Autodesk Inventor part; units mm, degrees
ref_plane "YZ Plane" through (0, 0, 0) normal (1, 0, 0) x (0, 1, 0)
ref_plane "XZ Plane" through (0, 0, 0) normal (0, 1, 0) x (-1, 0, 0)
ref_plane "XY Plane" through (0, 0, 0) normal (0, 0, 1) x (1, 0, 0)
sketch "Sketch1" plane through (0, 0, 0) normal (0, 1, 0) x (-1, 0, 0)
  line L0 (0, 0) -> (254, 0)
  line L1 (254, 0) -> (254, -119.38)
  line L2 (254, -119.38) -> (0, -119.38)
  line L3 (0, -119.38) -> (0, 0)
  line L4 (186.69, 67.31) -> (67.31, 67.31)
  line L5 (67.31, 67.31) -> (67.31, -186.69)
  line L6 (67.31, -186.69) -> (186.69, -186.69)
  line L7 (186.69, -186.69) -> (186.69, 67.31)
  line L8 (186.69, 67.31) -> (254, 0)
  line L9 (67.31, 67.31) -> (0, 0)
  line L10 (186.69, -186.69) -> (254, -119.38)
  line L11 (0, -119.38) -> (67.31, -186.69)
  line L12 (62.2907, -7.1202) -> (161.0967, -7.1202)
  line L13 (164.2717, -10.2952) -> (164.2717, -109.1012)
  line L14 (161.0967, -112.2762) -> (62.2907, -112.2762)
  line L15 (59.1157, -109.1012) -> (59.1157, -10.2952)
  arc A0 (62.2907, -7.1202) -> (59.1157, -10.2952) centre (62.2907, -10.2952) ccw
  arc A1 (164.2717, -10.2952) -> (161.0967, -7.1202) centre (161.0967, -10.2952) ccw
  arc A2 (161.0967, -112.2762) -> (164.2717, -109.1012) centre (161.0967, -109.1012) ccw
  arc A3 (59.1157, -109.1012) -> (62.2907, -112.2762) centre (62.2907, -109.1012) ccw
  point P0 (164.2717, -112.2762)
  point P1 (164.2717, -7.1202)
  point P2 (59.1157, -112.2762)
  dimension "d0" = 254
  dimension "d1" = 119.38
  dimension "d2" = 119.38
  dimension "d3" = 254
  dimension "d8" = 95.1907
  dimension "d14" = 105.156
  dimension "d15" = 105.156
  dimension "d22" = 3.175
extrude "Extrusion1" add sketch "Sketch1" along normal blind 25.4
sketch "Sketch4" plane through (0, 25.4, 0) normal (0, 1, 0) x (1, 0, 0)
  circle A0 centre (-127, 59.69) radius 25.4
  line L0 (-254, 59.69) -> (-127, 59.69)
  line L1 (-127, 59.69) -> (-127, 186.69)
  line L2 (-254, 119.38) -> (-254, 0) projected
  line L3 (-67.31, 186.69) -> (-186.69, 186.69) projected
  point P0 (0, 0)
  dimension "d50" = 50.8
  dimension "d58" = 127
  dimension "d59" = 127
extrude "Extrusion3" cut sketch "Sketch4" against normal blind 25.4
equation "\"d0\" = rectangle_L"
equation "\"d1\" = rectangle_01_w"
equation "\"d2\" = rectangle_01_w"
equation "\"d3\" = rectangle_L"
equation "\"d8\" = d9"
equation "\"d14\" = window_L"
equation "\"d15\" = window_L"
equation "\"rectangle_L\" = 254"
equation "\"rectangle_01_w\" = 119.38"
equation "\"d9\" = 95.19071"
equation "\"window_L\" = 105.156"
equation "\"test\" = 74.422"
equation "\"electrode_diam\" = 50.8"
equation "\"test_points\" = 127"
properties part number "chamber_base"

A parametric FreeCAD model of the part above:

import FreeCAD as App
import Part
import Sketcher
Q = App.Units.Quantity

doc = App.newDocument("Part")
body = doc.addObject("PartDesign::Body", "Body")

sketch1 = body.newObject("Sketcher::SketchObject", "Sketch")
sketch1.AttachmentSupport = (doc.getObject("XZ_Plane"), [""])
sketch1.MapMode = "FlatFace"
sketch1.addGeometry([
    Part.LineSegment(App.Vector(-67.31, 67.31, 0), App.Vector(0, 0, 0)),
    Part.LineSegment(App.Vector(0, 0, 0), App.Vector(0, -119.38, 0)),
    Part.LineSegment(App.Vector(0, -119.38, 0), App.Vector(-67.31, -186.69, 0)),
    Part.LineSegment(App.Vector(-67.31, -186.69, 0), App.Vector(-186.69, -186.69, 0)),
    Part.LineSegment(App.Vector(-186.69, -186.69, 0), App.Vector(-254, -119.38, 0)),
    Part.LineSegment(App.Vector(-254, -119.38, 0), App.Vector(-254, 0, 0)),
    Part.LineSegment(App.Vector(-254, 0, 0), App.Vector(-186.69, 67.31, 0)),
    Part.LineSegment(App.Vector(-186.69, 67.31, 0), App.Vector(-67.31, 67.31, 0)),
], False)
sketch1.addConstraint([
    Sketcher.Constraint("Coincident", 0, 2, 1, 1),
    Sketcher.Constraint("Coincident", 1, 2, 2, 1),
    Sketcher.Constraint("Coincident", 2, 2, 3, 1),
    Sketcher.Constraint("Coincident", 3, 2, 4, 1),
    Sketcher.Constraint("Coincident", 4, 2, 5, 1),
    Sketcher.Constraint("Coincident", 5, 2, 6, 1),
    Sketcher.Constraint("Coincident", 6, 2, 7, 1),
    Sketcher.Constraint("Coincident", 7, 2, 0, 1),
    Sketcher.Constraint("Vertical", 1),
    Sketcher.Constraint("Horizontal", 3),
    Sketcher.Constraint("Vertical", 5),
    Sketcher.Constraint("Horizontal", 7),
    Sketcher.Constraint("Coincident", 0, 2, -1, 1),
    Sketcher.Constraint("PointOnObject", 5, 2, -1),
    Sketcher.Constraint("Perpendicular", 0, 2),
    Sketcher.Constraint("Perpendicular", 2, 4),
    Sketcher.Constraint("Perpendicular", 4, 6),
    Sketcher.Constraint("Horizontal", 1, 2, 4, 2),
    Sketcher.Constraint("Vertical", 3, 2, 6, 2),
    Sketcher.Constraint("Vertical", 2, 2, 7, 2),
    Sketcher.Constraint("Equal", 7, 1),
    Sketcher.Constraint("DistanceX", 3, 2, 3, 1, Q("4.7 in")),
    Sketcher.Constraint("DistanceX", 4, 2, -1, 1, Q("10 in")),
])
pad1 = body.newObject("PartDesign::Pad", "Pad")
pad1.Profile = sketch1
pad1.Length = Q("1 in")
pad1.Reversed = True

sketch2 = body.newObject("Sketcher::SketchObject", "Sketch001")
sketch2.AttachmentSupport = (doc.getObject("XZ_Plane"), [""])
sketch2.MapMode = "FlatFace"
sketch2.AttachmentOffset = App.Placement(App.Vector(0, 0, -1 * 25.4), App.Rotation())
sketch2.addGeometry(Part.Circle(App.Vector(-127, -59.69, 0), App.Vector(0, 0, 1), 25.4), False)
sketch2.addConstraint([
    Sketcher.Constraint("Diameter", 0, Q("2 in")),
    Sketcher.Constraint("DistanceX", 0, 3, -1, 1, Q("5 in")),
    Sketcher.Constraint("DistanceY", 0, 3, -1, 1, Q("2.35 in")),
])
pocket1 = body.newObject("PartDesign::Pocket", "Pocket")
pocket1.Profile = sketch2
pocket1.Length = Q("1 in")
pocket1.Reversed = True

doc.recompute()
